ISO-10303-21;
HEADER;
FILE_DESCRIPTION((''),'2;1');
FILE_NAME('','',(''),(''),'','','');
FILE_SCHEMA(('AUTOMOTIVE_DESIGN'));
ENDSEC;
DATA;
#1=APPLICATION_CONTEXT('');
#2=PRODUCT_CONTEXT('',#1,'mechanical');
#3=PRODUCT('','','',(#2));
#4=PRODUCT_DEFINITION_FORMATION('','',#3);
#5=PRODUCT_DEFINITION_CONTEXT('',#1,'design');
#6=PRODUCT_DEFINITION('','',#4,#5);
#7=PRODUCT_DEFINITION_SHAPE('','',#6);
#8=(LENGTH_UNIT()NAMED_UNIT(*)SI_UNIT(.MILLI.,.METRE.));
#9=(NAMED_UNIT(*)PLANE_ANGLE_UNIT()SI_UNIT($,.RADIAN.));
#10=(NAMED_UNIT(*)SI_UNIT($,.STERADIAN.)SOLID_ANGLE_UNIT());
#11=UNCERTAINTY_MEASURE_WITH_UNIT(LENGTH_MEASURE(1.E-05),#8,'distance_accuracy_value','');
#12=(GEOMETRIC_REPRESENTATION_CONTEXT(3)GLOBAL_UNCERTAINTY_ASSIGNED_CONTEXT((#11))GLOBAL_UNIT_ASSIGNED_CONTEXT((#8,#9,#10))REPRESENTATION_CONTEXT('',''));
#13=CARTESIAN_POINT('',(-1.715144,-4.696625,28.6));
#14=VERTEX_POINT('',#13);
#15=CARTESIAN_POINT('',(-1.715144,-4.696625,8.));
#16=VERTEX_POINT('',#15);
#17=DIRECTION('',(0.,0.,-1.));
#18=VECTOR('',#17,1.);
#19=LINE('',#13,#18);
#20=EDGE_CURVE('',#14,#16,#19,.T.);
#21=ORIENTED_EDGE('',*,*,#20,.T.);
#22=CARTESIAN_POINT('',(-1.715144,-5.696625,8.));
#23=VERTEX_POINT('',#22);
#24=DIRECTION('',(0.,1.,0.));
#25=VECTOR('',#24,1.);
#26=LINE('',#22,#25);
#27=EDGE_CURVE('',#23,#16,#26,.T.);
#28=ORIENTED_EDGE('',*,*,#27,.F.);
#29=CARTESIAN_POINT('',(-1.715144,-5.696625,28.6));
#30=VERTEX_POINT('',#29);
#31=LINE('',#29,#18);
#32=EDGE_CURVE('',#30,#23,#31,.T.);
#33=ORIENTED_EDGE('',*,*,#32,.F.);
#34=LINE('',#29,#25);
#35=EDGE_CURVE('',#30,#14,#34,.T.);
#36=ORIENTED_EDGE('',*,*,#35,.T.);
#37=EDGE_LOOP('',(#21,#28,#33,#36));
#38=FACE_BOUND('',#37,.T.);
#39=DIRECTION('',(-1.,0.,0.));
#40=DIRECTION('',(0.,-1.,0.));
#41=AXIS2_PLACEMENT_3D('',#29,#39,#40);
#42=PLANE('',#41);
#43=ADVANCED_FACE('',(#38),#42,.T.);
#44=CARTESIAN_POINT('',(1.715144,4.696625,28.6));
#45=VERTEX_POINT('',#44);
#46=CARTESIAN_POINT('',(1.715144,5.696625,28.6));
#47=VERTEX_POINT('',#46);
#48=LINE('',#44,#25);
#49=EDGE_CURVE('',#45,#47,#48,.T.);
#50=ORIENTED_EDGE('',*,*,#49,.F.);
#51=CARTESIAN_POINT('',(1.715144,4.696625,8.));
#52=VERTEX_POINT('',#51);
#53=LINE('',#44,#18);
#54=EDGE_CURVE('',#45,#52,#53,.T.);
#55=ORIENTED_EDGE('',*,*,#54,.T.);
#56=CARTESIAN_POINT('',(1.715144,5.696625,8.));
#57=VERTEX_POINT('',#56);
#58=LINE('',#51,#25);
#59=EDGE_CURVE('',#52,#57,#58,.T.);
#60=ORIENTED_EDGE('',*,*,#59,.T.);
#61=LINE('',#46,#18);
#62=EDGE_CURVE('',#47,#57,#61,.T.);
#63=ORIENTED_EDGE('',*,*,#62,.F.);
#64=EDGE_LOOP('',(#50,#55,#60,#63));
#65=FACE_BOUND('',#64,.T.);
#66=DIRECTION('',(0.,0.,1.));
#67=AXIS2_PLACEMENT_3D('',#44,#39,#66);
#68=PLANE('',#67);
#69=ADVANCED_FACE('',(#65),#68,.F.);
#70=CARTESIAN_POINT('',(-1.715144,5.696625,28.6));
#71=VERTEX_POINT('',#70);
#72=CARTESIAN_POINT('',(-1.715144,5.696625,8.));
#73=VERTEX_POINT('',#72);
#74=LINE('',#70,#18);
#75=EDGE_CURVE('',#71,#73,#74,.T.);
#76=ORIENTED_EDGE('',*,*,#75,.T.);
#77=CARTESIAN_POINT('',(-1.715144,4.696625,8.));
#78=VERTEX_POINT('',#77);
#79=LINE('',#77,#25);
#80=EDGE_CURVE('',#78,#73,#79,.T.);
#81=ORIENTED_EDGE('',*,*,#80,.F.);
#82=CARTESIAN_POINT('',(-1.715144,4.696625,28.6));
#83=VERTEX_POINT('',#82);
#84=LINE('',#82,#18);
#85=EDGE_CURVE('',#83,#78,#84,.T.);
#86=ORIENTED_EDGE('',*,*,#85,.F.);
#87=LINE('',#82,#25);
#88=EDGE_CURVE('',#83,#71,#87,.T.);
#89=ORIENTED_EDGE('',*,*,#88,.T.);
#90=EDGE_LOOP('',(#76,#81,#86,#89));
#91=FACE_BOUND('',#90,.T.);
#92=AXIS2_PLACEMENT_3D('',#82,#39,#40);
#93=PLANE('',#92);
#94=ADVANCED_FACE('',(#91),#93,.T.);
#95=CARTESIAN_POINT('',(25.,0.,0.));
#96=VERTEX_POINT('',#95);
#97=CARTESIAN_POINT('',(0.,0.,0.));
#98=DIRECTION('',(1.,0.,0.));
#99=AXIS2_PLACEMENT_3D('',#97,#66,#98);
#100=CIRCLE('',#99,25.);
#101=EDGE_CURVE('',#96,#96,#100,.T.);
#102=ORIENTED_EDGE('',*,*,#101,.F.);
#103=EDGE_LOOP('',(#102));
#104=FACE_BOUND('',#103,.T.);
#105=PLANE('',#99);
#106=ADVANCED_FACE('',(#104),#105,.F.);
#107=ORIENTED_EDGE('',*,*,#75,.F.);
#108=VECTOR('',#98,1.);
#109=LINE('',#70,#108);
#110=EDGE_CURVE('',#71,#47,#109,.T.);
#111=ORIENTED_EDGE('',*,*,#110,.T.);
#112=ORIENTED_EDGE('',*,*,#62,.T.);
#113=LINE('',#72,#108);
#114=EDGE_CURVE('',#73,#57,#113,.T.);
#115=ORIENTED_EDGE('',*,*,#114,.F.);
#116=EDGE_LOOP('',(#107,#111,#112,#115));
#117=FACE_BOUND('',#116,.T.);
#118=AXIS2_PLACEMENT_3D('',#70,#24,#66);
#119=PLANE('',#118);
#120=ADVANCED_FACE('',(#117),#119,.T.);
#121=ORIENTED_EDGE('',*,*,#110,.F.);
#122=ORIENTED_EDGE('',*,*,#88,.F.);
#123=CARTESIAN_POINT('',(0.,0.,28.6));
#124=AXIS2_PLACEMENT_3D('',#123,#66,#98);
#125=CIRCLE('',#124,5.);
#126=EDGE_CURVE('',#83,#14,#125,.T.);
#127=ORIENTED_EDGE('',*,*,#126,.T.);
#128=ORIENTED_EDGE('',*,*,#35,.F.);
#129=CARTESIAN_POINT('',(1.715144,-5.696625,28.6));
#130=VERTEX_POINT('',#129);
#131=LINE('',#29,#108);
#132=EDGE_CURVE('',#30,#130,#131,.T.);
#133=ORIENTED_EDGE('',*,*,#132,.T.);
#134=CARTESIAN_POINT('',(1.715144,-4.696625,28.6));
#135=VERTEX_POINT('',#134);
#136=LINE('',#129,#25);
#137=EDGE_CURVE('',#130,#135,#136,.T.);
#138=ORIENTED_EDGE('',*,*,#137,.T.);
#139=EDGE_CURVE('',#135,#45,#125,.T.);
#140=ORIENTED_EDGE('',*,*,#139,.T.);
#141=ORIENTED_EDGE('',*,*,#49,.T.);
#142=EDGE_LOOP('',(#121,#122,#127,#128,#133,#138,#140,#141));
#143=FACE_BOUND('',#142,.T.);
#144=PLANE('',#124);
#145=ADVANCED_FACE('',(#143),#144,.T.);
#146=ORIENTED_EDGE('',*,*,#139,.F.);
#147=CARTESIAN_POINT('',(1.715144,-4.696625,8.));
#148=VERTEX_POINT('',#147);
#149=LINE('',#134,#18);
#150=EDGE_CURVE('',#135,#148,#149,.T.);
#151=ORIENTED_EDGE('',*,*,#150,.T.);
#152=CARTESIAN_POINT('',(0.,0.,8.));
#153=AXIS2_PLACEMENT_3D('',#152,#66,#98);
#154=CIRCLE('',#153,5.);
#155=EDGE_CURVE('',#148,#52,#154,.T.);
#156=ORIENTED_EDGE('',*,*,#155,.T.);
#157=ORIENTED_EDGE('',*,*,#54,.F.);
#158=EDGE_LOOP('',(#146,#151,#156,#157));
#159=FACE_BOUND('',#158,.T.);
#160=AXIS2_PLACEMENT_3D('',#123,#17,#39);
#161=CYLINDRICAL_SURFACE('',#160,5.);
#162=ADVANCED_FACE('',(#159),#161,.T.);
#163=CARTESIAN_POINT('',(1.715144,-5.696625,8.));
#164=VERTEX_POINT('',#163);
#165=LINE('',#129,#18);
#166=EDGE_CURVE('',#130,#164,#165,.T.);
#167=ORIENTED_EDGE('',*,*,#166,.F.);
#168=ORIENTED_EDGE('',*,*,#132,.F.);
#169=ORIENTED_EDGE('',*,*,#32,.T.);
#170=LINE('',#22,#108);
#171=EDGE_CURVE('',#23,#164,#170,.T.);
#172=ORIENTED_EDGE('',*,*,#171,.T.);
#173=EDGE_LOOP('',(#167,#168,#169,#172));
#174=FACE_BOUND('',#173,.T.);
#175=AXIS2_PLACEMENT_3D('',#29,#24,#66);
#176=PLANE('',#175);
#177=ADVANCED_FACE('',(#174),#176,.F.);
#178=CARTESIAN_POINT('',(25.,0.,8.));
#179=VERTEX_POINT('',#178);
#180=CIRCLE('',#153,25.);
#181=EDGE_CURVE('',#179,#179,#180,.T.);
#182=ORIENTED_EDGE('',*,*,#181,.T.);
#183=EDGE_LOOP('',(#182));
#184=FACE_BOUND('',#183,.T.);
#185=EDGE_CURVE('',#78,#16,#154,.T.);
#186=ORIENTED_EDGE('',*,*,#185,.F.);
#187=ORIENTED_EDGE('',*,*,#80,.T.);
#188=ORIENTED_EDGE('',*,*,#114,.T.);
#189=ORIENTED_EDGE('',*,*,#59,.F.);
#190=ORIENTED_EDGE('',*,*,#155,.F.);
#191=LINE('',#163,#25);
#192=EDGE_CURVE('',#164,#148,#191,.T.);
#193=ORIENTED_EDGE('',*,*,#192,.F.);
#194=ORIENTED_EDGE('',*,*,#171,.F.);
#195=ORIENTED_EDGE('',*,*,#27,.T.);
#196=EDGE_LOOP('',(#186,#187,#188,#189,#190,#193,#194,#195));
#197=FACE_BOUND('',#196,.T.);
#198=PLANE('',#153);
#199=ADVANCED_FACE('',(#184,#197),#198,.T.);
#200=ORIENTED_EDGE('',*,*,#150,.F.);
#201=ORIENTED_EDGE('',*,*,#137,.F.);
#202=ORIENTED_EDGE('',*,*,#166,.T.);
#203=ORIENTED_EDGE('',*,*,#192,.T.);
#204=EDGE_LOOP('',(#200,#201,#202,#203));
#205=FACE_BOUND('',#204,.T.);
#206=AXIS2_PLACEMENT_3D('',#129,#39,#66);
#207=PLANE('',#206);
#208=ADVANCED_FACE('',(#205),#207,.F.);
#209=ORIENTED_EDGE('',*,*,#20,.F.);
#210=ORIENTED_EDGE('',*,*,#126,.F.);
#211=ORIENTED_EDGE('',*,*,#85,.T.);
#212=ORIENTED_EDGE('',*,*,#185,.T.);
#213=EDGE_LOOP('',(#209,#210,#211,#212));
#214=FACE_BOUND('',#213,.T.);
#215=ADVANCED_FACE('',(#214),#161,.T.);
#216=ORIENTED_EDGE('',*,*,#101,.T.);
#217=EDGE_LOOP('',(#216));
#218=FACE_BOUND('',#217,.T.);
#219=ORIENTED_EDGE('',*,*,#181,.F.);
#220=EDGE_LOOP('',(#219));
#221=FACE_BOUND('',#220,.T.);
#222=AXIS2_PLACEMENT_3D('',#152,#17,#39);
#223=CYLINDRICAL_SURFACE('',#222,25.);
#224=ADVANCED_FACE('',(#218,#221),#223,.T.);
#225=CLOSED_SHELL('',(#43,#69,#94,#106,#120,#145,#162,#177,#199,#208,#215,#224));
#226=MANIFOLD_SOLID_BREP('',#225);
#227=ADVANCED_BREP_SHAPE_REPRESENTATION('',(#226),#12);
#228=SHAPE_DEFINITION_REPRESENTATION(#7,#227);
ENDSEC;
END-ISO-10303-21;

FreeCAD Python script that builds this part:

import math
import FreeCAD as App
import Part
import Sketcher
from FreeCAD import Vector

doc = App.newDocument("Part")
body = doc.addObject("PartDesign::Body", "Body")

# Sketch on XY plane
sketch1 = body.newObject("Sketcher::SketchObject", "Sketch")
sketch1.AttachmentSupport = (doc.getObject("XY_Plane"), [""])
sketch1.MapMode = "FlatFace"
sketch1.addGeometry(Part.Circle(Vector(0, 0, 0), Vector(0, 0, 1), 25), False)
sketch1.addConstraint([
    Sketcher.Constraint("Coincident", 0, 3, -1, 1),
    Sketcher.Constraint("Diameter", 0, 50.0),
])
pad1 = body.newObject("PartDesign::Pad", "Pad")
pad1.Profile = sketch1
pad1.Length = 8

# Sketch on XY plane
sketch2 = body.newObject("Sketcher::SketchObject", "Sketch001")
sketch2.AttachmentSupport = (doc.getObject("XY_Plane"), [""])
sketch2.MapMode = "FlatFace"
sketch2.AttachmentOffset = App.Placement(Vector(0, 0, 8), App.Rotation())
sketch2.addGeometry([
    Part.LineSegment(Vector(-1.715144, 5.696625, 0), Vector(-1.715144, 4.696625, 0)),  # 0
    Part.ArcOfCircle(Part.Circle(Vector(0, 0, 0), Vector(0, 0, 1), 5), math.radians(110.06151), math.radians(249.93849)),  # 1
    Part.LineSegment(Vector(-1.715144, -4.696625, 0), Vector(-1.715144, -5.696625, 0)),  # 2
    Part.LineSegment(Vector(-1.715144, -5.696625, 0), Vector(1.715144, -5.696625, 0)),  # 3
    Part.LineSegment(Vector(1.715144, -5.696625, 0), Vector(1.715144, -4.696625, 0)),  # 4
    Part.ArcOfCircle(Part.Circle(Vector(0, 0, 0), Vector(0, 0, 1), 5), math.radians(-69.93849), math.radians(69.93849)),  # 5
    Part.LineSegment(Vector(1.715144, 4.696625, 0), Vector(1.715144, 5.696625, 0)),  # 6
    Part.LineSegment(Vector(1.715144, 5.696625, 0), Vector(-1.715144, 5.696625, 0)),  # 7
], False)
sketch2.addConstraint([
    Sketcher.Constraint("Coincident", 0, 2, 1, 1),
    Sketcher.Constraint("Coincident", 1, 2, 2, 1),
    Sketcher.Constraint("Coincident", 2, 2, 3, 1),
    Sketcher.Constraint("Coincident", 3, 2, 4, 1),
    Sketcher.Constraint("Coincident", 4, 2, 5, 1),
    Sketcher.Constraint("Coincident", 5, 2, 6, 1),
    Sketcher.Constraint("Coincident", 6, 2, 7, 1),
    Sketcher.Constraint("Coincident", 7, 2, 0, 1),
    Sketcher.Constraint("Vertical", 0),
    Sketcher.Constraint("Vertical", 2),
    Sketcher.Constraint("Horizontal", 3),
    Sketcher.Constraint("Vertical", 4),
    Sketcher.Constraint("Vertical", 6),
    Sketcher.Constraint("Horizontal", 7),
    Sketcher.Constraint("Coincident", 1, 3, -1, 1),
    Sketcher.Constraint("Coincident", 5, 3, -1, 1),
    Sketcher.Constraint("Equal", 1, 5),
    Sketcher.Constraint("Symmetric", 2, 2, 6, 2, -1, 1),
    Sketcher.Constraint("Horizontal", 1, 2, 4, 2),
    Sketcher.Constraint("Horizontal", 0, 2, 5, 2),
    Sketcher.Constraint("Radius", 1, 5.0),
    Sketcher.Constraint("DistanceY", 0, 2, 0, 1, 1.0),
    Sketcher.Constraint("DistanceX", 3, 1, 3, 2, 3.430288),
])
pad2 = body.newObject("PartDesign::Pad", "Pad001")
pad2.Profile = sketch2
pad2.Length = 20.6

doc.recompute()
